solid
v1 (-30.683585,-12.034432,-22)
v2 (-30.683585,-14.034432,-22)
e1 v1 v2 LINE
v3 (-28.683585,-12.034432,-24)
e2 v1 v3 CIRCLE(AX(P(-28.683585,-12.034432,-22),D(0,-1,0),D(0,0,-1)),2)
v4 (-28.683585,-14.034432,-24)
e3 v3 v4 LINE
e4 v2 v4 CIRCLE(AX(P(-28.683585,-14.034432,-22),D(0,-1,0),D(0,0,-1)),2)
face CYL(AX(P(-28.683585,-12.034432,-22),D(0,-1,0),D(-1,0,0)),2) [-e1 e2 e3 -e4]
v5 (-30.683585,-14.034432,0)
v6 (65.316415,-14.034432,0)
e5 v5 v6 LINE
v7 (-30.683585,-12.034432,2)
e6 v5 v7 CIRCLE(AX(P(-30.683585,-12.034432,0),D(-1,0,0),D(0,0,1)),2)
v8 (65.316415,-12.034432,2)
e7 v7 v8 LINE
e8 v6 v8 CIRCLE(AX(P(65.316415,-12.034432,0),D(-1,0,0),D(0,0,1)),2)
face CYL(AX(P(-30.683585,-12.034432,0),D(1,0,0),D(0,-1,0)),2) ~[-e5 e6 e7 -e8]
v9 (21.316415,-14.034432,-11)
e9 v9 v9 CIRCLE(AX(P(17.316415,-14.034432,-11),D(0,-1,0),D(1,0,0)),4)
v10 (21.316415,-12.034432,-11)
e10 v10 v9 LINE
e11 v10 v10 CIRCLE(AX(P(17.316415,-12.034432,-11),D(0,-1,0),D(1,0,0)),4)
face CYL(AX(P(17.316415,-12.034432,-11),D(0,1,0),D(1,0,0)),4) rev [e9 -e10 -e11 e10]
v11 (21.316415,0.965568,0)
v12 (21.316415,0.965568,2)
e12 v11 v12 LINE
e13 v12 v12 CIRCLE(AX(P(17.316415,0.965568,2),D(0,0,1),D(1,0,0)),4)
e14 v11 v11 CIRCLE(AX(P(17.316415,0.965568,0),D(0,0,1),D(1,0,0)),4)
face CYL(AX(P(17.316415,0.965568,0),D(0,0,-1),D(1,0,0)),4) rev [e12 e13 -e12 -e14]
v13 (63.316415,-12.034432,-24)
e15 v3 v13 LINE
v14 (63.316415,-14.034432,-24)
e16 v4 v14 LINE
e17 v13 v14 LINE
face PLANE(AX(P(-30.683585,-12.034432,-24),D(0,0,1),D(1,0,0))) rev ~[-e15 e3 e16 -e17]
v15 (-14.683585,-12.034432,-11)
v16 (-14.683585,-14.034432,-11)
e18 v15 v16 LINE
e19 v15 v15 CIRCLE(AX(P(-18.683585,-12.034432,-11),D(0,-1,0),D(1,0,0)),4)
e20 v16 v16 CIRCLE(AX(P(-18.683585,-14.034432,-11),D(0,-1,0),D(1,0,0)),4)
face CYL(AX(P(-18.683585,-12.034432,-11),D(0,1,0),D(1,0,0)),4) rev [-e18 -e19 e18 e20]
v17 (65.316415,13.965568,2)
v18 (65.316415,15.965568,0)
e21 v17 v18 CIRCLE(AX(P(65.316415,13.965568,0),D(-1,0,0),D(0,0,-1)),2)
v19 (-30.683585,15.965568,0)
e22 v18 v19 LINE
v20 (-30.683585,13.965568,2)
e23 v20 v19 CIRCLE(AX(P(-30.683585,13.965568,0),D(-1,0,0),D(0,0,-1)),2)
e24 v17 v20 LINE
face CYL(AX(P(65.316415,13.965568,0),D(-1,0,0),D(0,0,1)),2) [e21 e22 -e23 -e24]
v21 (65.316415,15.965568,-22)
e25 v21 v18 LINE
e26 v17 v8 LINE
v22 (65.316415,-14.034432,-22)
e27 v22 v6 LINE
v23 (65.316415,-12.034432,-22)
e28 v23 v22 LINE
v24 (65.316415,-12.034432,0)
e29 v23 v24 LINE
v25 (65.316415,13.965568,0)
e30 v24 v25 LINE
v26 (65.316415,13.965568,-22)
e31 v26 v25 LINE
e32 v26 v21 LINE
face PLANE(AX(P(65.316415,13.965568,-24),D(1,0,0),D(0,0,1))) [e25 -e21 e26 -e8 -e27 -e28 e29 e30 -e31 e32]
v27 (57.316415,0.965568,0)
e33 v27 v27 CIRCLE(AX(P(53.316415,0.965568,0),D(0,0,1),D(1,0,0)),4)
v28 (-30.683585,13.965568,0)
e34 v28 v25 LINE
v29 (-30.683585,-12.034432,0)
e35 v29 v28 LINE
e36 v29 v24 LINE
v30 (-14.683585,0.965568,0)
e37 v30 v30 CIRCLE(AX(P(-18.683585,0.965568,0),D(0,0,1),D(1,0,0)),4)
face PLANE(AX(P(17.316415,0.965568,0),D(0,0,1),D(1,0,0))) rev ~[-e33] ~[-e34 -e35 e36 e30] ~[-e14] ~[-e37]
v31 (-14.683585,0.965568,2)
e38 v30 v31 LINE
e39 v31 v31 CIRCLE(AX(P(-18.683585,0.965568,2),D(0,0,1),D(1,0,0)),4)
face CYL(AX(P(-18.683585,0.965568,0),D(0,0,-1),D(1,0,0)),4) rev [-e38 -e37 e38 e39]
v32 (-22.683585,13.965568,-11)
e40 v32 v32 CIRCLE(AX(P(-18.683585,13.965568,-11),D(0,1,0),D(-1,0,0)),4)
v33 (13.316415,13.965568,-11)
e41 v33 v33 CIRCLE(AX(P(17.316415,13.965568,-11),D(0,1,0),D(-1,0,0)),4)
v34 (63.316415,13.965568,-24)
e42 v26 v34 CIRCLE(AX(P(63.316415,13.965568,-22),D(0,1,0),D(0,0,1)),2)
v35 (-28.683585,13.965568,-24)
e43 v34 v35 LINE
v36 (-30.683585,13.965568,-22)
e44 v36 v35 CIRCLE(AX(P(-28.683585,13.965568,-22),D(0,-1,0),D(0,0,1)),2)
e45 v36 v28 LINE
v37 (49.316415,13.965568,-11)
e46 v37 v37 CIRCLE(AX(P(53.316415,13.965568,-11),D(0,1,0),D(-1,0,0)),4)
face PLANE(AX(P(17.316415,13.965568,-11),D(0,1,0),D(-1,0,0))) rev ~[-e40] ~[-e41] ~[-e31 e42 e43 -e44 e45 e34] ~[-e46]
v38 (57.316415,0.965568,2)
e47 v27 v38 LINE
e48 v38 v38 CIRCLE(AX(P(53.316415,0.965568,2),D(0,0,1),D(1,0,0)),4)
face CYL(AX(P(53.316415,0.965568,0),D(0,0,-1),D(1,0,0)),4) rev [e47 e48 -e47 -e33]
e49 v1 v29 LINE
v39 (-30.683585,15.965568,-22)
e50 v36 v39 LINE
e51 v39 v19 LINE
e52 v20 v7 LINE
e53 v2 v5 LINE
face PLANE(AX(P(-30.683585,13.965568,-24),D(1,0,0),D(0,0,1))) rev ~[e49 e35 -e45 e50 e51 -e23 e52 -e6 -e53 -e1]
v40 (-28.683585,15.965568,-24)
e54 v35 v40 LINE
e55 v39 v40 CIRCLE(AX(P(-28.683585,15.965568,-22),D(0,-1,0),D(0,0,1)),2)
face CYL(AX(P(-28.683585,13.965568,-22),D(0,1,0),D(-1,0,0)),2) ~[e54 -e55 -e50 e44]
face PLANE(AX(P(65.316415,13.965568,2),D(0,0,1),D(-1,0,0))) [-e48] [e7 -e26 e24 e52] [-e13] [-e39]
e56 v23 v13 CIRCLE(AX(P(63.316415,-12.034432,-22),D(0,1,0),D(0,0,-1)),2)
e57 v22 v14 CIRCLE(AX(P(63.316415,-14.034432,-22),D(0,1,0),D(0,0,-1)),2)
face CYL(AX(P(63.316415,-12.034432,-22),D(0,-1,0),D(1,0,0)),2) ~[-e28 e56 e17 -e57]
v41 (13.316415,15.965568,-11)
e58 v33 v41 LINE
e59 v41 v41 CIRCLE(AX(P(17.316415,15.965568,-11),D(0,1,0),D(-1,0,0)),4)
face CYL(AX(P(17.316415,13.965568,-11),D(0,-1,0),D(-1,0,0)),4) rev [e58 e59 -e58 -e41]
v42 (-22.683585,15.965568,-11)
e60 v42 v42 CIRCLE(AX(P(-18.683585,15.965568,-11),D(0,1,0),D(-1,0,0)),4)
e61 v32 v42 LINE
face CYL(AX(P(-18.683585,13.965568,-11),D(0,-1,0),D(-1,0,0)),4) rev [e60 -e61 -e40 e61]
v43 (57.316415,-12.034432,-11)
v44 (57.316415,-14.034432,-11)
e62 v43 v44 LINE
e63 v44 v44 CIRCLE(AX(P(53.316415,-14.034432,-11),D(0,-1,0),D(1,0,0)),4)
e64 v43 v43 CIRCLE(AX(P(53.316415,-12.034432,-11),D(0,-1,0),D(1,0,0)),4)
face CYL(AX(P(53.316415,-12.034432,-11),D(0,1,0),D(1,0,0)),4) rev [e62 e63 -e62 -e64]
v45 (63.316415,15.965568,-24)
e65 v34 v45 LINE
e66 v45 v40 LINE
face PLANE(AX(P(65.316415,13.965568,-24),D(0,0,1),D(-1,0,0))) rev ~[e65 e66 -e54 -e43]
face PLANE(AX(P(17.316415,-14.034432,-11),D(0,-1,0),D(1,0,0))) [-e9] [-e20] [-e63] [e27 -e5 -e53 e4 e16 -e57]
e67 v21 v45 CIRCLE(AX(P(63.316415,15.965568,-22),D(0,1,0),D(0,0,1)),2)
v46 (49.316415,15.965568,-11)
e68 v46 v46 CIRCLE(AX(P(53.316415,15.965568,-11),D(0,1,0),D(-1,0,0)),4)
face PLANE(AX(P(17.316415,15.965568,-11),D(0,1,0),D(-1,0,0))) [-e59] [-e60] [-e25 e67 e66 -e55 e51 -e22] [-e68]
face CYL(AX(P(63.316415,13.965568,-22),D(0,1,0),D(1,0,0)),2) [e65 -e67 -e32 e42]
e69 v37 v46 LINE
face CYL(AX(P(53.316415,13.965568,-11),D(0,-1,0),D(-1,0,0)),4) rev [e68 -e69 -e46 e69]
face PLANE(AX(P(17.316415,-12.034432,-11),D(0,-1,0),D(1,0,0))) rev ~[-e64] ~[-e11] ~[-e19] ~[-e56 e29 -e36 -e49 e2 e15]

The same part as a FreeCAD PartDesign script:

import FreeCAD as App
import Part
import Sketcher

V = App.Vector
Q = App.Units.Quantity


def edges_at(feature, points):
    """Names of the edges that pass closest to the given points."""
    edges = feature.Shape.Edges
    near = lambda p: min(range(len(edges)), key=lambda i: edges[i].distToShape(Part.Vertex(*p))[0])
    return sorted({f"Edge{near(p) + 1}" for p in points})

doc = App.newDocument("Part")
body = doc.addObject("PartDesign::Body", "Body")

# Sketch on XY plane
sketch1 = body.newObject("Sketcher::SketchObject", "Sketch")
sketch1.AttachmentSupport = (doc.getObject("XY_Plane"), [""])
sketch1.MapMode = "FlatFace"
sketch1.addGeometry(Part.LineSegment(V(-30.683585, 13.965568, 0), V(-30.683585, -12.034432, 0)), False)
sketch1.addGeometry(Part.LineSegment(V(-30.683585, -12.034432, 0), V(65.316415, -12.034432, 0)), False)
sketch1.addGeometry(Part.LineSegment(V(65.316415, -12.034432, 0), V(65.316415, 13.965568, 0)), False)
sketch1.addGeometry(Part.LineSegment(V(65.316415, 13.965568, 0), V(-30.683585, 13.965568, 0)), False)
sketch1.addGeometry(Part.Circle(V(-18.683585, 0.965568, 0), V(0, 0, 1), 4), False)
sketch1.addGeometry(Part.Circle(V(17.316415, 0.965568, 0), V(0, 0, 1), 4), False)
sketch1.addGeometry(Part.Circle(V(53.316415, 0.965568, 0), V(0, 0, 1), 4), False)
sketch1.addConstraint(Sketcher.Constraint("Coincident", 0, 2, 1, 1))
sketch1.addConstraint(Sketcher.Constraint("Coincident", 1, 2, 2, 1))
sketch1.addConstraint(Sketcher.Constraint("Coincident", 2, 2, 3, 1))
sketch1.addConstraint(Sketcher.Constraint("Coincident", 3, 2, 0, 1))
sketch1.addConstraint(Sketcher.Constraint("Vertical", 0))
sketch1.addConstraint(Sketcher.Constraint("Horizontal", 1))
sketch1.addConstraint(Sketcher.Constraint("Vertical", 2))
sketch1.addConstraint(Sketcher.Constraint("Horizontal", 3))
sketch1.addConstraint(Sketcher.Constraint("Equal", 4, 5))
sketch1.addConstraint(Sketcher.Constraint("Equal", 5, 6))
sketch1.addConstraint(Sketcher.Constraint("Horizontal", 4, 3, 5, 3))
sketch1.addConstraint(Sketcher.Constraint("Horizontal", 5, 3, 6, 3))
sketch1.addConstraint(Sketcher.Constraint("Diameter", 4, Q("8 mm")))
sketch1.addConstraint(Sketcher.Constraint("DistanceX", 1, 1, 1, 2, Q("96 mm")))
sketch1.addConstraint(Sketcher.Constraint("DistanceY", 0, 2, 0, 1, Q("26 mm")))
sketch1.addConstraint(Sketcher.Constraint("DistanceX", 4, 3, 5, 3, Q("36 mm")))
sketch1.addConstraint(Sketcher.Constraint("DistanceX", 5, 3, 6, 3, Q("36 mm")))
sketch1.addConstraint(Sketcher.Constraint("DistanceX", 0, 2, 4, 3, Q("12 mm")))
sketch1.addConstraint(Sketcher.Constraint("DistanceY", 0, 2, 4, 3, Q("13 mm")))
sketch1.addConstraint(Sketcher.Constraint("DistanceY", -1, 1, 4, 3, Q("0.965568 mm")))
sketch1.addConstraint(Sketcher.Constraint("DistanceX", 4, 3, -1, 1, Q("18.683585 mm")))
pad1 = body.newObject("PartDesign::Pad", "Pad")
pad1.Profile = sketch1
pad1.Length = 2

# Sketch on XZ plane
sketch2 = body.newObject("Sketcher::SketchObject", "Sketch001")
sketch2.AttachmentSupport = (doc.getObject("XZ_Plane"), [""])
sketch2.MapMode = "FlatFace"
sketch2.AttachmentOffset = App.Placement(V(0, 0, 12.034432), App.Rotation())
sketch2.addGeometry(Part.LineSegment(V(-30.683585, 2, 0), V(-30.683585, -24, 0)), False)
sketch2.addGeometry(Part.LineSegment(V(-30.683585, -24, 0), V(65.316415, -24, 0)), False)
sketch2.addGeometry(Part.LineSegment(V(65.316415, -24, 0), V(65.316415, 2, 0)), False)
sketch2.addGeometry(Part.LineSegment(V(65.316415, 2, 0), V(-30.683585, 2, 0)), False)
sketch2.addGeometry(Part.Circle(V(-18.683585, -11, 0), V(0, 0, 1), 4), False)
sketch2.addGeometry(Part.Circle(V(17.316415, -11, 0), V(0, 0, 1), 4), False)
sketch2.addGeometry(Part.Circle(V(53.316415, -11, 0), V(0, 0, 1), 4), False)
sketch2.addConstraint(Sketcher.Constraint("Coincident", 0, 2, 1, 1))
sketch2.addConstraint(Sketcher.Constraint("Coincident", 1, 2, 2, 1))
sketch2.addConstraint(Sketcher.Constraint("Coincident", 2, 2, 3, 1))
sketch2.addConstraint(Sketcher.Constraint("Coincident", 3, 2, 0, 1))
sketch2.addConstraint(Sketcher.Constraint("Vertical", 0))
sketch2.addConstraint(Sketcher.Constraint("Horizontal", 1))
sketch2.addConstraint(Sketcher.Constraint("Vertical", 2))
sketch2.addConstraint(Sketcher.Constraint("Horizontal", 3))
sketch2.addConstraint(Sketcher.Constraint("Equal", 4, 5))
sketch2.addConstraint(Sketcher.Constraint("Equal", 5, 6))
sketch2.addConstraint(Sketcher.Constraint("Horizontal", 4, 3, 5, 3))
sketch2.addConstraint(Sketcher.Constraint("Horizontal", 5, 3, 6, 3))
sketch2.addConstraint(Sketcher.Constraint("Diameter", 4, Q("8 mm")))
sketch2.addConstraint(Sketcher.Constraint("DistanceX", 1, 1, 1, 2, Q("96 mm")))
sketch2.addConstraint(Sketcher.Constraint("DistanceY", 0, 2, 0, 1, Q("26 mm")))
sketch2.addConstraint(Sketcher.Constraint("DistanceY", 4, 3, -1, 1, Q("11 mm")))
sketch2.addConstraint(Sketcher.Constraint("DistanceY", 0, 2, -1, 1, Q("24 mm")))
sketch2.addConstraint(Sketcher.Constraint("DistanceX", 4, 3, 5, 3, Q("36 mm")))
sketch2.addConstraint(Sketcher.Constraint("DistanceX", 5, 3, 6, 3, Q("36 mm")))
sketch2.addConstraint(Sketcher.Constraint("DistanceX", 0, 2, 4, 3, Q("12 mm")))
sketch2.addConstraint(Sketcher.Constraint("DistanceX", 4, 3, -1, 1, Q("18.683585 mm")))
pad2 = body.newObject("PartDesign::Pad", "Pad001")
pad2.Profile = sketch2
pad2.Length = 2

# Sketch on XZ plane
sketch3 = body.newObject("Sketcher::SketchObject", "Sketch002")
sketch3.AttachmentSupport = (doc.getObject("XZ_Plane"), [""])
sketch3.MapMode = "FlatFace"
sketch3.AttachmentOffset = App.Placement(V(0, 0, -13.965568), App.Rotation())
sketch3.addGeometry(Part.LineSegment(V(65.316415, 2, 0), V(65.316415, -24, 0)), False)
sketch3.addGeometry(Part.LineSegment(V(65.316415, -24, 0), V(-30.683585, -24, 0)), False)
sketch3.addGeometry(Part.LineSegment(V(-30.683585, -24, 0), V(-30.683585, 2, 0)), False)
sketch3.addGeometry(Part.LineSegment(V(-30.683585, 2, 0), V(65.316415, 2, 0)), False)
sketch3.addGeometry(Part.Circle(V(53.316415, -11, 0), V(0, 0, 1), 4), False)
sketch3.addGeometry(Part.Circle(V(17.316415, -11, 0), V(0, 0, 1), 4), False)
sketch3.addGeometry(Part.Circle(V(-18.683585, -11, 0), V(0, 0, 1), 4), False)
sketch3.addConstraint(Sketcher.Constraint("Coincident", 0, 2, 1, 1))
sketch3.addConstraint(Sketcher.Constraint("Coincident", 1, 2, 2, 1))
sketch3.addConstraint(Sketcher.Constraint("Coincident", 2, 2, 3, 1))
sketch3.addConstraint(Sketcher.Constraint("Coincident", 3, 2, 0, 1))
sketch3.addConstraint(Sketcher.Constraint("Vertical", 0))
sketch3.addConstraint(Sketcher.Constraint("Horizontal", 1))
sketch3.addConstraint(Sketcher.Constraint("Vertical", 2))
sketch3.addConstraint(Sketcher.Constraint("Horizontal", 3))
sketch3.addConstraint(Sketcher.Constraint("Equal", 4, 5))
sketch3.addConstraint(Sketcher.Constraint("Equal", 5, 6))
sketch3.addConstraint(Sketcher.Constraint("Horizontal", 4, 3, 5, 3))
sketch3.addConstraint(Sketcher.Constraint("Horizontal", 5, 3, 6, 3))
sketch3.addConstraint(Sketcher.Constraint("Diameter", 4, Q("8 mm")))
sketch3.addConstraint(Sketcher.Constraint("DistanceX", 1, 2, 1, 1, Q("96 mm")))
sketch3.addConstraint(Sketcher.Constraint("DistanceY", 0, 2, 0, 1, Q("26 mm")))
sketch3.addConstraint(Sketcher.Constraint("DistanceY", 4, 3, -1, 1, Q("11 mm")))
sketch3.addConstraint(Sketcher.Constraint("DistanceY", 0, 2, -1, 1, Q("24 mm")))
sketch3.addConstraint(Sketcher.Constraint("DistanceX", 5, 3, 4, 3, Q("36 mm")))
sketch3.addConstraint(Sketcher.Constraint("DistanceX", 6, 3, 5, 3, Q("36 mm")))
sketch3.addConstraint(Sketcher.Constraint("DistanceX", 4, 3, 0, 2, Q("12 mm")))
sketch3.addConstraint(Sketcher.Constraint("DistanceX", -1, 1, 4, 3, Q("53.316415 mm")))
pad3 = body.newObject("PartDesign::Pad", "Pad002")
pad3.Profile = sketch3
pad3.Length = 2
pad3.Reversed = True
doc.recompute()

fillet = body.newObject("PartDesign::Fillet", "Fillet")
fillet.Base = (pad3, edges_at(pad3, [
    (17.316, -14.034, 2),
    (17.316, 15.966, 2),
    (65.316, 14.966, -24),
    (65.316, -13.034, -24),
    (-30.684, 14.966, -24),
    (-30.684, -13.034, -24),
]))
fillet.Radius = 2

doc.recompute()
